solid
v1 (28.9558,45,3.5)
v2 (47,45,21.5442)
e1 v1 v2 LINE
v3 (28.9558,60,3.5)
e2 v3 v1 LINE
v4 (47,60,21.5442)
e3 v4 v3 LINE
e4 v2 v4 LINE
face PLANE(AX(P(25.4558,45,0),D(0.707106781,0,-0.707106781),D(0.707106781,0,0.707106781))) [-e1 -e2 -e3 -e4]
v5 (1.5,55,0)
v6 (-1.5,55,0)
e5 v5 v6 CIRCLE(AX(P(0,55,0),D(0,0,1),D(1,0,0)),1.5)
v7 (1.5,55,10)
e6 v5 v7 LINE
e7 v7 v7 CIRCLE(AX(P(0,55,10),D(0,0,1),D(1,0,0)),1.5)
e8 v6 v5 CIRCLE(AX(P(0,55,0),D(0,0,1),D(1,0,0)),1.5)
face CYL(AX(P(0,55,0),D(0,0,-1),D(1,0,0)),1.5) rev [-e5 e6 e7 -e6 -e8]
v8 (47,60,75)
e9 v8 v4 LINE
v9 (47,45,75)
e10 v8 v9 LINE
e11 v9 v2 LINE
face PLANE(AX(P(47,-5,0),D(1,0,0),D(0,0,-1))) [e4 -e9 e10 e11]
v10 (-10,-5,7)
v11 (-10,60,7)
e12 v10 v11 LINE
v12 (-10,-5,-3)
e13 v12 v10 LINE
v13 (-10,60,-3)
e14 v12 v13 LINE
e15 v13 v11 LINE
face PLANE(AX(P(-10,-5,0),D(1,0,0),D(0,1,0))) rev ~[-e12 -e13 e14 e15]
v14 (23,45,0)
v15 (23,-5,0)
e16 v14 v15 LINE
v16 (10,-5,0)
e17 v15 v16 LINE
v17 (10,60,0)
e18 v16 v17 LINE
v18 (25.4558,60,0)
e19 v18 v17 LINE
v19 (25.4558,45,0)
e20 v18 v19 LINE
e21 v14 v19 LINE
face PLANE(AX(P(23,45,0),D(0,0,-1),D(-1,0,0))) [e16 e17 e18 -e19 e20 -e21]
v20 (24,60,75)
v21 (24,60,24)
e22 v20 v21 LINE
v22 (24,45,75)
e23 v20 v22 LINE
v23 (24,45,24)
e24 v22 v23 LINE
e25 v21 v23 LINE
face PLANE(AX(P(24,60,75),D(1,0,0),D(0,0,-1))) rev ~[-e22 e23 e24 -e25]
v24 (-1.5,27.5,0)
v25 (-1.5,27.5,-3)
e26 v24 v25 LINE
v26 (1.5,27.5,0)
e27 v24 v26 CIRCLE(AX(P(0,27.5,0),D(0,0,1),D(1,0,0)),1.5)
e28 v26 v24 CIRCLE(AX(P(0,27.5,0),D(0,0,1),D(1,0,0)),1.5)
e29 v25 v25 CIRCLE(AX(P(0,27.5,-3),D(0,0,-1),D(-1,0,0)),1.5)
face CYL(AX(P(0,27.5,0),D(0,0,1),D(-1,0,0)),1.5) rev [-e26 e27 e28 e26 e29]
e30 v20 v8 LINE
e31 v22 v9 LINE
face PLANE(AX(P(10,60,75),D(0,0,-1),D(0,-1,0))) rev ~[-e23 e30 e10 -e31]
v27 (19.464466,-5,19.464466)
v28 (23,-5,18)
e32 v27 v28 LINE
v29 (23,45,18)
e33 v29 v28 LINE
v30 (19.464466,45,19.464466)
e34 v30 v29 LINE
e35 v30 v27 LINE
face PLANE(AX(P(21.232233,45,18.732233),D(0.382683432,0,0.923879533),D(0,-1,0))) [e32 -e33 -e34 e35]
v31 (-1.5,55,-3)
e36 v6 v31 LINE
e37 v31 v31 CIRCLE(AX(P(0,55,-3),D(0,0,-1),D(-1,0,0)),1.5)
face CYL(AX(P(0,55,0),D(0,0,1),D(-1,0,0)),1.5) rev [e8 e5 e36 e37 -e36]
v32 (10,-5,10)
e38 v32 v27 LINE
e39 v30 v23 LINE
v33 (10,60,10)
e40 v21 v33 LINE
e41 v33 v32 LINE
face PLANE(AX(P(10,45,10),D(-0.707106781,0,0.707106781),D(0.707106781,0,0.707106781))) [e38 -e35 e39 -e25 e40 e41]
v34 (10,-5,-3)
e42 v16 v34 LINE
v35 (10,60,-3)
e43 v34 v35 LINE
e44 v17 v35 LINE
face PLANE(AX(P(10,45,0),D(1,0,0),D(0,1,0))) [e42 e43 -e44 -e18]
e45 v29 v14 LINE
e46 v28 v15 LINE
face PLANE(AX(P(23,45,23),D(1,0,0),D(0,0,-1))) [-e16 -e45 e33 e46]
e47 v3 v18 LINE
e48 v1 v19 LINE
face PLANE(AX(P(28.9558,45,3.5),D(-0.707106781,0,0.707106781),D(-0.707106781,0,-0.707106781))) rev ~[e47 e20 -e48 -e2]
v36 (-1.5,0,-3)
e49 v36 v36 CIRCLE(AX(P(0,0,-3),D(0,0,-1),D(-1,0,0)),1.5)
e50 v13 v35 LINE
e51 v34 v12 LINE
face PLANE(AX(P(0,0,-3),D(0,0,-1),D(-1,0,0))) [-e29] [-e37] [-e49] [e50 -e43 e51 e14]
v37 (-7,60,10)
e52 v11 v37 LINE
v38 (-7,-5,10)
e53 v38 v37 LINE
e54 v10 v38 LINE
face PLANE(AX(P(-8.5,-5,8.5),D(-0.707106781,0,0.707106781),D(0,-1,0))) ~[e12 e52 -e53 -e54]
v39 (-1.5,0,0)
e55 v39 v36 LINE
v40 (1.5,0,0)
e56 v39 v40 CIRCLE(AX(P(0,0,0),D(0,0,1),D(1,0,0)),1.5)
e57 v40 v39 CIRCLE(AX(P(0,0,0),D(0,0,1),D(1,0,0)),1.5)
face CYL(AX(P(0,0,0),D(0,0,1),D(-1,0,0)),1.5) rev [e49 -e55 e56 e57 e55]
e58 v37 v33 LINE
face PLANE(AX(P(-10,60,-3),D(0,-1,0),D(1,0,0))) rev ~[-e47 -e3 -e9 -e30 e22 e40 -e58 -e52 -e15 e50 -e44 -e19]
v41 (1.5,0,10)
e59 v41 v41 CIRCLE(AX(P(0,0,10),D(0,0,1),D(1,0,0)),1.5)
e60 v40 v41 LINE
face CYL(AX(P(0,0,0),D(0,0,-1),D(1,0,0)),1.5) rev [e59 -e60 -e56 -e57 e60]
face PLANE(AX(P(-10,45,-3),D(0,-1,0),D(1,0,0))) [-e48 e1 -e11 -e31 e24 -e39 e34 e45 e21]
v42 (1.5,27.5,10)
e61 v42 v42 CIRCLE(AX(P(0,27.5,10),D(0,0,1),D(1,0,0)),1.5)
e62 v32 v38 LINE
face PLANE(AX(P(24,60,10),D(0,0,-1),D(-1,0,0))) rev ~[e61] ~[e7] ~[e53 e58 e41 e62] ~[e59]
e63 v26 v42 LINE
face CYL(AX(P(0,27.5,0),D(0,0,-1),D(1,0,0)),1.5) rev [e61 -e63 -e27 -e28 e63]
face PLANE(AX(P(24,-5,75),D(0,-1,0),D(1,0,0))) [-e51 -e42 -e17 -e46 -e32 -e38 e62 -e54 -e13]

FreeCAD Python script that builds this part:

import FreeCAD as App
import Part
import Sketcher

V = App.Vector
Q = App.Units.Quantity


def edges_at(feature, points):
    """Names of the edges that pass closest to the given points."""
    edges = feature.Shape.Edges
    near = lambda p: min(range(len(edges)), key=lambda i: edges[i].distToShape(Part.Vertex(*p))[0])
    return sorted({f"Edge{near(p) + 1}" for p in points})

doc = App.newDocument("Part")
params = doc.addObject("Spreadsheet::Sheet", "Params")
for row, (alias, value) in enumerate([
    ("sketch1_diameter", "3 mm"),
    ("pad1_length", "10 mm"),
    ("sketch2_width", "15 mm"),
    ("sketch2_height", "75 mm"),
    ("pad2_length", "37 mm"),
    ("sketch3_width", "14 mm"),
    ("sketch3_height", "65 mm"),
    ("chamfer_size", "14 mm"),
    ("sketch5_diameter", "3 mm"),
    ("sketch5_width", "20 mm"),
    ("sketch5_height", "65 mm"),
    ("pad3_length", "3 mm"),
    ("chamfer2_size", "3 mm"),
    ("sketch6_height", "2 mm"),
    ("pad4_length", "65 mm"),
    ("sketch7_height", "2 mm"),
    ("sketch8_height", "2 mm"),
    ("pocket4_length", "50 mm"),
    ("sketch9_width", "13 mm"),
    ("sketch9_height", "10 mm"),
    ("sketch9_height2", "23 mm"),
    ("pad5_length", "50 mm"),
    ("chamfer3_size", "5 mm"),
], start=1):
    params.set(f"A{row}", alias)
    params.set(f"B{row}", "=" + value)
    params.setAlias(f"B{row}", alias)

body = doc.addObject("PartDesign::Body", "Body")

sketch1 = body.newObject("Sketcher::SketchObject", "Sketch")
sketch1.AttachmentSupport = (doc.getObject("XY_Plane"), [""])
sketch1.MapMode = "FlatFace"
sketch1.addGeometry(Part.LineSegment(V(10, 60, 0), V(-10, 60, 0)), False)
sketch1.addGeometry(Part.LineSegment(V(-10, 60, 0), V(-10, -5, 0)), False)
sketch1.addGeometry(Part.LineSegment(V(-10, -5, 0), V(10, -5, 0)), False)
sketch1.addGeometry(Part.LineSegment(V(10, -5, 0), V(10, 60, 0)), False)
sketch1.addGeometry(Part.Circle(V(0, 0, 0), V(0, 0, 1), 1.5), False)
sketch1.addGeometry(Part.Circle(V(0, 27.5, 0), V(0, 0, 1), 1.5), False)
sketch1.addGeometry(Part.Circle(V(0, 55, 0), V(0, 0, 1), 1.5), False)
sketch1.addConstraint(Sketcher.Constraint("Coincident", 0, 2, 1, 1))
sketch1.addConstraint(Sketcher.Constraint("Coincident", 1, 2, 2, 1))
sketch1.addConstraint(Sketcher.Constraint("Coincident", 2, 2, 3, 1))
sketch1.addConstraint(Sketcher.Constraint("Coincident", 3, 2, 0, 1))
sketch1.addConstraint(Sketcher.Constraint("Horizontal", 0))
sketch1.addConstraint(Sketcher.Constraint("Vertical", 1))
sketch1.addConstraint(Sketcher.Constraint("Horizontal", 2))
sketch1.addConstraint(Sketcher.Constraint("Vertical", 3))
sketch1.addConstraint(Sketcher.Constraint("Coincident", 4, 3, -1, 1))
sketch1.addConstraint(Sketcher.Constraint("Equal", 4, 5))
sketch1.addConstraint(Sketcher.Constraint("Equal", 5, 6))
sketch1.addConstraint(Sketcher.Constraint("PointOnObject", 5, 3, -2))
sketch1.addConstraint(Sketcher.Constraint("PointOnObject", 6, 3, -2))
sketch1.addConstraint(Sketcher.Constraint("Diameter", 4, 3.0))
sketch1.addConstraint(Sketcher.Constraint("DistanceY", -1, 1, 6, 3, 55.0))
sketch1.addConstraint(Sketcher.Constraint("DistanceX", 0, 2, -1, 1, 10.0))
sketch1.addConstraint(Sketcher.Constraint("DistanceY", 1, 2, -1, 1, 5.0))
sketch1.addConstraint(Sketcher.Constraint("DistanceX", -1, 1, 2, 2, 10.0))
sketch1.addConstraint(Sketcher.Constraint("DistanceY", 6, 3, 0, 2, 5.0))
sketch1.addConstraint(Sketcher.Constraint("DistanceY", -1, 1, 5, 3, 27.5))
sketch1.setExpression("Constraints[13]", "Params.sketch1_diameter")
pad1 = body.newObject("PartDesign::Pad", "Pad")
pad1.Profile = sketch1
pad1.setExpression("Length", "Params.pad1_length")

sketch2 = body.newObject("Sketcher::SketchObject", "Sketch001")
sketch2.AttachmentSupport = (doc.getObject("YZ_Plane"), [""])
sketch2.MapMode = "FlatFace"
sketch2.AttachmentOffset = App.Placement(V(0, 0, 10), App.Rotation())
sketch2.addGeometry(Part.LineSegment(V(45, 0, 0), V(60, 0, 0)), False)
sketch2.addGeometry(Part.LineSegment(V(60, 0, 0), V(60, 75, 0)), False)
sketch2.addGeometry(Part.LineSegment(V(60, 75, 0), V(45, 75, 0)), False)
sketch2.addGeometry(Part.LineSegment(V(45, 75, 0), V(45, 0, 0)), False)
sketch2.addConstraint(Sketcher.Constraint("Coincident", 0, 2, 1, 1))
sketch2.addConstraint(Sketcher.Constraint("Coincident", 1, 2, 2, 1))
sketch2.addConstraint(Sketcher.Constraint("Coincident", 2, 2, 3, 1))
sketch2.addConstraint(Sketcher.Constraint("Coincident", 3, 2, 0, 1))
sketch2.addConstraint(Sketcher.Constraint("Horizontal", 0))
sketch2.addConstraint(Sketcher.Constraint("Vertical", 1))
sketch2.addConstraint(Sketcher.Constraint("Horizontal", 2))
sketch2.addConstraint(Sketcher.Constraint("Vertical", 3))
sketch2.addConstraint(Sketcher.Constraint("PointOnObject", 0, 2, -1))
sketch2.addConstraint(Sketcher.Constraint("DistanceX", 0, 1, 0, 2, 15.0))
sketch2.addConstraint(Sketcher.Constraint("DistanceY", 1, 1, 1, 2, 75.0))
sketch2.addConstraint(Sketcher.Constraint("DistanceX", -1, 1, 0, 2, 60.0))
sketch2.setExpression("Constraints[9]", "Params.sketch2_width")
sketch2.setExpression("Constraints[10]", "Params.sketch2_height")
pad2 = body.newObject("PartDesign::Pad", "Pad001")
pad2.Profile = sketch2
pad2.setExpression("Length", "Params.pad2_length")

sketch3 = body.newObject("Sketcher::SketchObject", "Sketch002")
sketch3.AttachmentSupport = (doc.getObject("XZ_Plane"), [""])
sketch3.MapMode = "FlatFace"
sketch3.AttachmentOffset = App.Placement(V(0, 0, -60), App.Rotation())
sketch3.addGeometry(Part.LineSegment(V(10, 10, 0), V(10, 75, 0)), False)
sketch3.addGeometry(Part.LineSegment(V(10, 75, 0), V(24, 75, 0)), False)
sketch3.addGeometry(Part.LineSegment(V(24, 75, 0), V(24, 10, 0)), False)
sketch3.addGeometry(Part.LineSegment(V(24, 10, 0), V(10, 10, 0)), False)
sketch3.addConstraint(Sketcher.Constraint("Coincident", 0, 2, 1, 1))
sketch3.addConstraint(Sketcher.Constraint("Coincident", 1, 2, 2, 1))
sketch3.addConstraint(Sketcher.Constraint("Coincident", 2, 2, 3, 1))
sketch3.addConstraint(Sketcher.Constraint("Coincident", 3, 2, 0, 1))
sketch3.addConstraint(Sketcher.Constraint("Vertical", 0))
sketch3.addConstraint(Sketcher.Constraint("Horizontal", 1))
sketch3.addConstraint(Sketcher.Constraint("Vertical", 2))
sketch3.addConstraint(Sketcher.Constraint("Horizontal", 3))
sketch3.addConstraint(Sketcher.Constraint("DistanceX", 1, 1, 1, 2, 14.0))
sketch3.addConstraint(Sketcher.Constraint("DistanceY", 0, 1, 0, 2, 65.0))
sketch3.addConstraint(Sketcher.Constraint("DistanceX", -1, 1, 0, 2, 10.0))
sketch3.addConstraint(Sketcher.Constraint("DistanceY", -1, 1, 0, 2, 75.0))
sketch3.setExpression("Constraints[8]", "Params.sketch3_width")
sketch3.setExpression("Constraints[9]", "Params.sketch3_height")
pocket1 = body.newObject("PartDesign::Pocket", "Pocket")
pocket1.Profile = sketch3
pocket1.Type = "ThroughAll"
pocket1.Reversed = True
doc.recompute()

chamfer = body.newObject("PartDesign::Chamfer", "Chamfer")
chamfer.Base = (pocket1, edges_at(pocket1, [(24, 52.5, 10)]))
chamfer.setExpression("Size", "Params.chamfer_size")

sketch4 = body.newObject("Sketcher::SketchObject", "Sketch003")
sketch4.AttachmentSupport = (doc.getObject("XZ_Plane"), [""])
sketch4.MapMode = "FlatFace"
sketch4.AttachmentOffset = App.Placement(V(0, 0, -45), App.Rotation())
sketch4.addGeometry(Part.LineSegment(V(47, 21.5442, 0), V(25.4558, 0, 0)), False)
sketch4.addGeometry(Part.LineSegment(V(25.4558, 0, 0), V(47, 0, 0)), False)
sketch4.addGeometry(Part.LineSegment(V(47, 0, 0), V(47, 21.5442, 0)), False)
sketch4.addConstraint(Sketcher.Constraint("Coincident", 0, 2, 1, 1))
sketch4.addConstraint(Sketcher.Constraint("Coincident", 1, 2, 2, 1))
sketch4.addConstraint(Sketcher.Constraint("Coincident", 2, 2, 0, 1))
sketch4.addConstraint(Sketcher.Constraint("Horizontal", 1))
sketch4.addConstraint(Sketcher.Constraint("Vertical", 2))
sketch4.addConstraint(Sketcher.Constraint("PointOnObject", 0, 2, -1))
sketch4.addConstraint(Sketcher.Constraint("Equal", 1, 2))
sketch4.addConstraint(Sketcher.Constraint("DistanceX", -1, 1, 1, 2, 47.0))
sketch4.addConstraint(Sketcher.Constraint("Distance", 0, 30.468))
pocket2 = body.newObject("PartDesign::Pocket", "Pocket001")
pocket2.Profile = sketch4
pocket2.Type = "ThroughAll"

sketch5 = body.newObject("Sketcher::SketchObject", "Sketch004")
sketch5.AttachmentSupport = (doc.getObject("XY_Plane"), [""])
sketch5.MapMode = "FlatFace"
sketch5.addGeometry(Part.LineSegment(V(-10, 60, 0), V(10, 60, 0)), False)
sketch5.addGeometry(Part.LineSegment(V(10, 60, 0), V(10, -5, 0)), False)
sketch5.addGeometry(Part.LineSegment(V(10, -5, 0), V(-10, -5, 0)), False)
sketch5.addGeometry(Part.LineSegment(V(-10, -5, 0), V(-10, 60, 0)), False)
sketch5.addGeometry(Part.Circle(V(0, 0, 0), V(0, 0, 1), 1.5), False)
sketch5.addGeometry(Part.Circle(V(0, 27.5, 0), V(0, 0, 1), 1.5), False)
sketch5.addGeometry(Part.Circle(V(0, 55, 0), V(0, 0, 1), 1.5), False)
sketch5.addConstraint(Sketcher.Constraint("Coincident", 0, 2, 1, 1))
sketch5.addConstraint(Sketcher.Constraint("Coincident", 1, 2, 2, 1))
sketch5.addConstraint(Sketcher.Constraint("Coincident", 2, 2, 3, 1))
sketch5.addConstraint(Sketcher.Constraint("Coincident", 3, 2, 0, 1))
sketch5.addConstraint(Sketcher.Constraint("Horizontal", 0))
sketch5.addConstraint(Sketcher.Constraint("Vertical", 1))
sketch5.addConstraint(Sketcher.Constraint("Horizontal", 2))
sketch5.addConstraint(Sketcher.Constraint("Vertical", 3))
sketch5.addConstraint(Sketcher.Constraint("Coincident", 4, 3, -1, 1))
sketch5.addConstraint(Sketcher.Constraint("Equal", 4, 5))
sketch5.addConstraint(Sketcher.Constraint("Equal", 5, 6))
sketch5.addConstraint(Sketcher.Constraint("PointOnObject", 5, 3, -2))
sketch5.addConstraint(Sketcher.Constraint("PointOnObject", 6, 3, -2))
sketch5.addConstraint(Sketcher.Constraint("Diameter", 4, 3.0))
sketch5.addConstraint(Sketcher.Constraint("DistanceX", 0, 1, 0, 2, 20.0))
sketch5.addConstraint(Sketcher.Constraint("DistanceY", 1, 2, 1, 1, 65.0))
sketch5.addConstraint(Sketcher.Constraint("DistanceY", -1, 1, 6, 3, 55.0))
sketch5.addConstraint(Sketcher.Constraint("DistanceX", -1, 1, 0, 2, 10.0))
sketch5.addConstraint(Sketcher.Constraint("DistanceY", -1, 1, 0, 2, 60.0))
sketch5.addConstraint(Sketcher.Constraint("DistanceY", -1, 1, 5, 3, 27.5))
sketch5.setExpression("Constraints[13]", "Params.sketch5_diameter")
sketch5.setExpression("Constraints[14]", "Params.sketch5_width")
sketch5.setExpression("Constraints[15]", "Params.sketch5_height")
pad3 = body.newObject("PartDesign::Pad", "Pad002")
pad3.Profile = sketch5
pad3.setExpression("Length", "Params.pad3_length")
pad3.Reversed = True
doc.recompute()

chamfer2 = body.newObject("PartDesign::Chamfer", "Chamfer001")
chamfer2.Base = (pad3, edges_at(pad3, [(-10, 27.5, 10)]))
chamfer2.setExpression("Size", "Params.chamfer2_size")

sketch6 = body.newObject("Sketcher::SketchObject", "Sketch005")
sketch6.AttachmentSupport = (doc.getObject("XZ_Plane"), [""])
sketch6.MapMode = "FlatFace"
sketch6.AttachmentOffset = App.Placement(V(0, 0, 5), App.Rotation())
sketch6.addGeometry(Part.LineSegment(V(10, 2, 0), V(10, 0, 0)), False)
sketch6.addGeometry(Part.LineSegment(V(10, 0, 0), V(25.4558, 0, 0)), False)
sketch6.addGeometry(Part.LineSegment(V(25.4558, 0, 0), V(27.5981, 1.5, 0)), False)
sketch6.addGeometry(Part.LineSegment(V(27.5981, 1.5, 0), V(41, 1.5, 0)), False)
sketch6.addGeometry(Part.LineSegment(V(41, 1.5, 0), V(41, 3.5, 0)), False)
sketch6.addGeometry(Part.LineSegment(V(41, 3.5, 0), V(26.9675, 3.5, 0)), False)
sketch6.addGeometry(Part.LineSegment(V(26.9675, 3.5, 0), V(24.8252, 2, 0)), False)
sketch6.addGeometry(Part.LineSegment(V(24.8252, 2, 0), V(10, 2, 0)), False)
sketch6.addConstraint(Sketcher.Constraint("Coincident", 0, 2, 1, 1))
sketch6.addConstraint(Sketcher.Constraint("Coincident", 1, 2, 2, 1))
sketch6.addConstraint(Sketcher.Constraint("Coincident", 2, 2, 3, 1))
sketch6.addConstraint(Sketcher.Constraint("Coincident", 3, 2, 4, 1))
sketch6.addConstraint(Sketcher.Constraint("Coincident", 4, 2, 5, 1))
sketch6.addConstraint(Sketcher.Constraint("Coincident", 5, 2, 6, 1))
sketch6.addConstraint(Sketcher.Constraint("Coincident", 6, 2, 7, 1))
sketch6.addConstraint(Sketcher.Constraint("Coincident", 7, 2, 0, 1))
sketch6.addConstraint(Sketcher.Constraint("Vertical", 0))
sketch6.addConstraint(Sketcher.Constraint("Horizontal", 1))
sketch6.addConstraint(Sketcher.Constraint("Horizontal", 3))
sketch6.addConstraint(Sketcher.Constraint("Vertical", 4))
sketch6.addConstraint(Sketcher.Constraint("Horizontal", 5))
sketch6.addConstraint(Sketcher.Constraint("Horizontal", 7))
sketch6.addConstraint(Sketcher.Constraint("PointOnObject", 0, 2, -1))
sketch6.addConstraint(Sketcher.Constraint("Parallel", 2, 6))
sketch6.addConstraint(Sketcher.Constraint("Equal", 0, 4))
sketch6.addConstraint(Sketcher.Constraint("DistanceY", 0, 2, 0, 1, 2.0))
sketch6.addConstraint(Sketcher.Constraint("DistanceY", -1, 1, 2, 2, 1.5))
sketch6.addConstraint(Sketcher.Constraint("Angle", 2, Q("34.999 deg")))
sketch6.addConstraint(Sketcher.Constraint("DistanceX", -1, 1, 0, 2, 10.0))
sketch6.addConstraint(Sketcher.Constraint("DistanceX", -1, 1, 3, 2, 41.0))
sketch6.addConstraint(Sketcher.Constraint("DistanceX", 3, 1, 3, 2, 13.402))
sketch6.addConstraint(Sketcher.Constraint("DistanceX", 5, 2, 5, 1, 14.0325))
sketch6.setExpression("Constraints[17]", "Params.sketch6_height")
pad4 = body.newObject("PartDesign::Pad", "Pad003")
pad4.Profile = sketch6
pad4.setExpression("Length", "Params.pad4_length")
pad4.Reversed = True

sketch7 = body.newObject("Sketcher::SketchObject", "Sketch006")
sketch7.AttachmentSupport = (doc.getObject("XZ_Plane"), [""])
sketch7.MapMode = "FlatFace"
sketch7.AttachmentOffset = App.Placement(V(0, 0, -60), App.Rotation())
sketch7.addGeometry(Part.LineSegment(V(41, 3.5, 0), V(41, 1.5, 0)), False)
sketch7.addGeometry(Part.LineSegment(V(41, 1.5, 0), V(27.5981, 1.5, 0)), False)
sketch7.addGeometry(Part.LineSegment(V(27.5981, 1.5, 0), V(28.9558, 3.5, 0)), False)
sketch7.addGeometry(Part.LineSegment(V(28.9558, 3.5, 0), V(41, 3.5, 0)), False)
sketch7.addConstraint(Sketcher.Constraint("Coincident", 0, 2, 1, 1))
sketch7.addConstraint(Sketcher.Constraint("Coincident", 1, 2, 2, 1))
sketch7.addConstraint(Sketcher.Constraint("Coincident", 2, 2, 3, 1))
sketch7.addConstraint(Sketcher.Constraint("Coincident", 3, 2, 0, 1))
sketch7.addConstraint(Sketcher.Constraint("Vertical", 0))
sketch7.addConstraint(Sketcher.Constraint("Horizontal", 1))
sketch7.addConstraint(Sketcher.Constraint("Horizontal", 3))
sketch7.addConstraint(Sketcher.Constraint("DistanceY", 0, 2, 0, 1, 2.0))
sketch7.addConstraint(Sketcher.Constraint("DistanceX", -1, 1, 0, 2, 41.0))
sketch7.addConstraint(Sketcher.Constraint("DistanceY", -1, 1, 0, 2, 1.5))
sketch7.addConstraint(Sketcher.Constraint("Angle", 2, Q("55.8294 deg")))
sketch7.addConstraint(Sketcher.Constraint("DistanceX", 1, 2, 1, 1, 13.402))
sketch7.setExpression("Constraints[7]", "Params.sketch7_height")
pocket3 = body.newObject("PartDesign::Pocket", "Pocket002")
pocket3.Profile = sketch7
pocket3.Type = "ThroughAll"
pocket3.Reversed = True

sketch8 = body.newObject("Sketcher::SketchObject", "Sketch007")
sketch8.AttachmentSupport = (doc.getObject("XZ_Plane"), [""])
sketch8.MapMode = "FlatFace"
sketch8.AttachmentOffset = App.Placement(V(0, 0, 5), App.Rotation())
sketch8.addGeometry(Part.LineSegment(V(26.9675, 3.5, 0), V(24.8252, 2, 0)), False)
sketch8.addGeometry(Part.LineSegment(V(24.8252, 2, 0), V(10, 2, 0)), False)
sketch8.addGeometry(Part.LineSegment(V(10, 2, 0), V(10, 0, 0)), False)
sketch8.addGeometry(Part.LineSegment(V(10, 0, 0), V(25.4558, 0, 0)), False)
sketch8.addGeometry(Part.LineSegment(V(25.4558, 0, 0), V(27.5981, 1.5, 0)), False)
sketch8.addGeometry(Part.LineSegment(V(27.5981, 1.5, 0), V(28.9558, 3.5, 0)), False)
sketch8.addGeometry(Part.LineSegment(V(28.9558, 3.5, 0), V(26.9675, 3.5, 0)), False)
sketch8.addConstraint(Sketcher.Constraint("Coincident", 0, 2, 1, 1))
sketch8.addConstraint(Sketcher.Constraint("Coincident", 1, 2, 2, 1))
sketch8.addConstraint(Sketcher.Constraint("Coincident", 2, 2, 3, 1))
sketch8.addConstraint(Sketcher.Constraint("Coincident", 3, 2, 4, 1))
sketch8.addConstraint(Sketcher.Constraint("Coincident", 4, 2, 5, 1))
sketch8.addConstraint(Sketcher.Constraint("Coincident", 5, 2, 6, 1))
sketch8.addConstraint(Sketcher.Constraint("Coincident", 6, 2, 0, 1))
sketch8.addConstraint(Sketcher.Constraint("Horizontal", 1))
sketch8.addConstraint(Sketcher.Constraint("Vertical", 2))
sketch8.addConstraint(Sketcher.Constraint("Horizontal", 3))
sketch8.addConstraint(Sketcher.Constraint("Horizontal", 6))
sketch8.addConstraint(Sketcher.Constraint("PointOnObject", 2, 2, -1))
sketch8.addConstraint(Sketcher.Constraint("Parallel", 0, 4))
sketch8.addConstraint(Sketcher.Constraint("Equal", 0, 4))
sketch8.addConstraint(Sketcher.Constraint("DistanceY", 2, 2, 2, 1, 2.0))
sketch8.addConstraint(Sketcher.Constraint("Angle", 0, Q("-145.001 deg")))
sketch8.addConstraint(Sketcher.Constraint("DistanceX", -1, 1, 1, 2, 10.0))
sketch8.addConstraint(Sketcher.Constraint("DistanceY", -1, 1, 4, 2, 1.5))
sketch8.addConstraint(Sketcher.Constraint("Angle", 5, Q("55.8294 deg")))
sketch8.addConstraint(Sketcher.Constraint("DistanceX", 1, 2, 1, 1, 14.8252))
sketch8.addConstraint(Sketcher.Constraint("DistanceX", 3, 1, 3, 2, 15.4558))
sketch8.setExpression("Constraints[14]", "Params.sketch8_height")
pocket4 = body.newObject("PartDesign::Pocket", "Pocket003")
pocket4.Profile = sketch8
pocket4.setExpression("Length", "Params.pocket4_length")

sketch9 = body.newObject("Sketcher::SketchObject", "Sketch008")
sketch9.AttachmentSupport = (doc.getObject("XZ_Plane"), [""])
sketch9.MapMode = "FlatFace"
sketch9.AttachmentOffset = App.Placement(V(0, 0, -45), App.Rotation())
sketch9.addGeometry(Part.LineSegment(V(23, 23, 0), V(10, 10, 0)), False)
sketch9.addGeometry(Part.LineSegment(V(10, 10, 0), V(10, 0, 0)), False)
sketch9.addGeometry(Part.LineSegment(V(10, 0, 0), V(23, 0, 0)), False)
sketch9.addGeometry(Part.LineSegment(V(23, 0, 0), V(23, 23, 0)), False)
sketch9.addConstraint(Sketcher.Constraint("Coincident", 0, 2, 1, 1))
sketch9.addConstraint(Sketcher.Constraint("Coincident", 1, 2, 2, 1))
sketch9.addConstraint(Sketcher.Constraint("Coincident", 2, 2, 3, 1))
sketch9.addConstraint(Sketcher.Constraint("Coincident", 3, 2, 0, 1))
sketch9.addConstraint(Sketcher.Constraint("Vertical", 1))
sketch9.addConstraint(Sketcher.Constraint("Horizontal", 2))
sketch9.addConstraint(Sketcher.Constraint("Vertical", 3))
sketch9.addConstraint(Sketcher.Constraint("PointOnObject", 1, 2, -1))
sketch9.addConstraint(Sketcher.Constraint("DistanceX", 2, 1, 2, 2, 13.0))
sketch9.addConstraint(Sketcher.Constraint("DistanceY", 1, 2, 1, 1, 10.0))
sketch9.addConstraint(Sketcher.Constraint("DistanceY", 3, 1, 3, 2, 23.0))
sketch9.addConstraint(Sketcher.Constraint("DistanceX", -1, 1, 0, 2, 10.0))
sketch9.setExpression("Constraints[8]", "Params.sketch9_width")
sketch9.setExpression("Constraints[9]", "Params.sketch9_height")
sketch9.setExpression("Constraints[10]", "Params.sketch9_height2")
pad5 = body.newObject("PartDesign::Pad", "Pad004")
pad5.Profile = sketch9
pad5.setExpression("Length", "Params.pad5_length")
doc.recompute()

chamfer3 = body.newObject("PartDesign::Chamfer", "Chamfer002")
chamfer3.Base = (pad5, edges_at(pad5, [(23, 20, 23)]))
chamfer3.setExpression("Size", "Params.chamfer3_size")

sketch10 = body.newObject("Sketcher::SketchObject", "Sketch009")
sketch10.AttachmentSupport = (doc.getObject("XZ_Plane"), [""])
sketch10.MapMode = "FlatFace"
sketch10.AttachmentOffset = App.Placement(V(0, 0, -45), App.Rotation())
sketch10.addGeometry(Part.LineSegment(V(25.4558, 0, 0), V(27.5981, 1.5, 0)), False)
sketch10.addGeometry(Part.LineSegment(V(27.5981, 1.5, 0), V(28.9558, 3.5, 0)), False)
sketch10.addGeometry(Part.LineSegment(V(28.9558, 3.5, 0), V(25.4558, 0, 0)), False)
sketch10.addConstraint(Sketcher.Constraint("Coincident", 0, 2, 1, 1))
sketch10.addConstraint(Sketcher.Constraint("Coincident", 1, 2, 2, 1))
sketch10.addConstraint(Sketcher.Constraint("Coincident", 2, 2, 0, 1))
sketch10.addConstraint(Sketcher.Constraint("PointOnObject", 2, 2, -1))
sketch10.addConstraint(Sketcher.Constraint("Angle", 0, Q("34.999 deg")))
sketch10.addConstraint(Sketcher.Constraint("Angle", 2, Q("-135 deg")))
sketch10.addConstraint(Sketcher.Constraint("DistanceY", 0, 2, 1, 2, 2.0))
sketch10.addConstraint(Sketcher.Constraint("DistanceY", -1, 1, 0, 2, 1.5))
sketch10.addConstraint(Sketcher.Constraint("DistanceX", -1, 1, 0, 2, 27.598))
pocket5 = body.newObject("PartDesign::Pocket", "Pocket004")
pocket5.Profile = sketch10
pocket5.Type = "ThroughAll"

doc.recompute()
